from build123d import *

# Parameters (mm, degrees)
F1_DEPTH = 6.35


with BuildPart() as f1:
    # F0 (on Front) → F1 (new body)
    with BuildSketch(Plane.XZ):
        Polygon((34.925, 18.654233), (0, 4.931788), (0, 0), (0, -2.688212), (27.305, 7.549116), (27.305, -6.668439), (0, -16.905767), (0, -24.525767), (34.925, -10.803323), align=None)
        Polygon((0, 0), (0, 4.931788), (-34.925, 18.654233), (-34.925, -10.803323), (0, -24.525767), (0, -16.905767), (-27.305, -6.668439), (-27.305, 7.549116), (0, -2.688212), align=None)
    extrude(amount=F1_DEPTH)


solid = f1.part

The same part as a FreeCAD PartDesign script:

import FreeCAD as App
import Part
import Sketcher
from FreeCAD import Vector
Q = App.Units.Quantity


def add_polygon(sketch, points):
    """Adds a closed chain of lines whose ends are joined by coincident constraints."""
    first, n = sketch.GeometryCount, len(points)
    for a, b in zip(points, points[1:] + points[:1]):
        sketch.addGeometry(Part.LineSegment(App.Vector(*a, 0), App.Vector(*b, 0)), False)
    for i in range(n):
        sketch.addConstraint(Sketcher.Constraint("Coincident", first + i, 2, first + (i + 1) % n, 1))

doc = App.newDocument("Part")
body = doc.addObject("PartDesign::Body", "Body")

# Sketch on XZ plane
sketch1 = body.newObject("Sketcher::SketchObject", "Sketch")
sketch1.AttachmentSupport = (doc.getObject("XZ_Plane"), [""])
sketch1.MapMode = "FlatFace"
add_polygon(sketch1, [(35, 19), (0, 5), (-35, 19), (-35, -11), (0, -25), (35, -11)])  # lines 0-5
add_polygon(sketch1, [(0, -3), (27, 8), (27, -7), (0, -17), (-27, -7), (-27, 8)])  # lines 6-11
sketch1.addConstraint(Sketcher.Constraint("Vertical", 2))
sketch1.addConstraint(Sketcher.Constraint("Vertical", 5))
sketch1.addConstraint(Sketcher.Constraint("Vertical", 7))
sketch1.addConstraint(Sketcher.Constraint("Vertical", 10))
sketch1.addConstraint(Sketcher.Constraint("Symmetric", 2, 2, 4, 2, -2))
sketch1.addConstraint(Sketcher.Constraint("Symmetric", 7, 2, 9, 2, -2))
sketch1.addConstraint(Sketcher.Constraint("PointOnObject", 0, 2, -2))
sketch1.addConstraint(Sketcher.Constraint("PointOnObject", 3, 2, -2))
sketch1.addConstraint(Sketcher.Constraint("PointOnObject", 8, 2, -2))
sketch1.addConstraint(Sketcher.Constraint("PointOnObject", 11, 2, -2))
sketch1.addConstraint(Sketcher.Constraint("Parallel", 1, 3))
sketch1.addConstraint(Sketcher.Constraint("Parallel", 0, 4))
sketch1.addConstraint(Sketcher.Constraint("Parallel", 6, 8))
sketch1.addConstraint(Sketcher.Constraint("Parallel", 9, 11))
sketch1.addConstraint(Sketcher.Constraint("DistanceY", 3, 2, 1, 2, Q("1.7 in")))
sketch1.addConstraint(Sketcher.Constraint("DistanceX", 6, 2, 5, 2, Q("0.3 in")))
sketch1.addConstraint(Sketcher.Constraint("DistanceY", 3, 2, 8, 2, Q("0.3 in")))
sketch1.addConstraint(Sketcher.Constraint("DistanceY", 11, 2, 0, 2, Q("0.3 in")))
sketch1.addConstraint(Sketcher.Constraint("DistanceX", 2, 2, 4, 2, Q("2.75 in")))
sketch1.addConstraint(Sketcher.Constraint("Distance", 0, 37.524141))
sketch1.addConstraint(Sketcher.Constraint("DistanceY", 7, 2, -1, 1, 6.668439))
sketch1.addConstraint(Sketcher.Constraint("DistanceY", 11, 2, -1, 1, 2.688212))
pad1 = body.newObject("PartDesign::Pad", "Pad")
pad1.Profile = sketch1
pad1.Length = Q("0.25 in")

doc.recompute()
